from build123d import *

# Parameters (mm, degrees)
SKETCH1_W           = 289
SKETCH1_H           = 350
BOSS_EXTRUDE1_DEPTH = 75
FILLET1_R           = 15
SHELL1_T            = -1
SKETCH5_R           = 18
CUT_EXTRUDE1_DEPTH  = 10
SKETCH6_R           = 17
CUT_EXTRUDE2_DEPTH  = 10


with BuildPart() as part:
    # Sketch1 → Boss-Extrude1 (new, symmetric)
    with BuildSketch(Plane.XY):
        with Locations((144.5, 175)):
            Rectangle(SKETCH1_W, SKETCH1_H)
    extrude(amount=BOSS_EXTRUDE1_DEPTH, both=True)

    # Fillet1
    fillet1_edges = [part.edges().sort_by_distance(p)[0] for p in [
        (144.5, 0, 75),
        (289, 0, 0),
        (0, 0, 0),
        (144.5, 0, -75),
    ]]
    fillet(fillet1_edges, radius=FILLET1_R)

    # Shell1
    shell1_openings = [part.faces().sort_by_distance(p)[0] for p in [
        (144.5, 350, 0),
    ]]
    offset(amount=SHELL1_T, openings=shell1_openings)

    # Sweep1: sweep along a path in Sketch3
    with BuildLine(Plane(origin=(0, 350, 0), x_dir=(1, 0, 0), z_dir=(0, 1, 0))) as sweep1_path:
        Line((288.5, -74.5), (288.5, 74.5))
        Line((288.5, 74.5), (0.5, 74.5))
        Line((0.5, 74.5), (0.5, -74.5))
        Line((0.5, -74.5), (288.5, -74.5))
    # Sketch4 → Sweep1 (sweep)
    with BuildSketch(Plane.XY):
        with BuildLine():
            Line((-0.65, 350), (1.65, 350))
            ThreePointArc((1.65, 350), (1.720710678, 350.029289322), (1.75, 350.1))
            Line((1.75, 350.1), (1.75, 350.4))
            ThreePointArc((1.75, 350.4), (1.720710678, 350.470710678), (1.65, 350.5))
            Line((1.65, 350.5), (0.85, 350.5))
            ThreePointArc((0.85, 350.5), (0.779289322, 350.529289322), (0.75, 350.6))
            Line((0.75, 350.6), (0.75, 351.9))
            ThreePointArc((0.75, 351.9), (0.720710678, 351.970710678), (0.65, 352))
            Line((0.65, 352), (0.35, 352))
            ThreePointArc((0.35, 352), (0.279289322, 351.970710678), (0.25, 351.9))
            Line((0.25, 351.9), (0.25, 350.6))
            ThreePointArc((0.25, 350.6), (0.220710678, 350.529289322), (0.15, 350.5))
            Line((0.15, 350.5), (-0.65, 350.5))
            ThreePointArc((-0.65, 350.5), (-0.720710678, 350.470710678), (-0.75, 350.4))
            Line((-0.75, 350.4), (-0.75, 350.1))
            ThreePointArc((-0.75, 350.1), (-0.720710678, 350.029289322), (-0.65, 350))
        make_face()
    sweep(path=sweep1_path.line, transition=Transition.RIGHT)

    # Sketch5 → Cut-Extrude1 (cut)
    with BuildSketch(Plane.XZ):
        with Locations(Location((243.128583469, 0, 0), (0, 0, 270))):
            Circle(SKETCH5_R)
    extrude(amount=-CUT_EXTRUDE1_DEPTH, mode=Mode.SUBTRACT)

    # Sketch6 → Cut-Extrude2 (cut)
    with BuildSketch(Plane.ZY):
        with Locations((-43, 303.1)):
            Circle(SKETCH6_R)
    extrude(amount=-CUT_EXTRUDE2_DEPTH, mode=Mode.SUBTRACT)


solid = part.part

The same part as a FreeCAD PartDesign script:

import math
import FreeCAD as App
import Part
import Sketcher

V = App.Vector


def edges_at(feature, points):
    """Names of the edges that pass closest to the given points."""
    edges = feature.Shape.Edges
    near = lambda p: min(range(len(edges)), key=lambda i: edges[i].distToShape(Part.Vertex(*p))[0])
    return sorted({f"Edge{near(p) + 1}" for p in points})


def faces_at(feature, points):
    """Names of the faces that lie closest to the given points."""
    faces = feature.Shape.Faces
    near = lambda p: min(range(len(faces)), key=lambda i: faces[i].distToShape(Part.Vertex(*p))[0])
    return sorted({f"Face{near(p) + 1}" for p in points})


def add_polygon(sketch, points):
    """Adds a closed chain of lines whose ends are joined by coincident constraints."""
    first, n = sketch.GeometryCount, len(points)
    for a, b in zip(points, points[1:] + points[:1]):
        sketch.addGeometry(Part.LineSegment(App.Vector(*a, 0), App.Vector(*b, 0)), False)
    for i in range(n):
        sketch.addConstraint(Sketcher.Constraint("Coincident", first + i, 2, first + (i + 1) % n, 1))

doc = App.newDocument("Part")
body = doc.addObject("PartDesign::Body", "Body")

sketch1 = body.newObject("Sketcher::SketchObject", "Sketch")
sketch1.AttachmentSupport = (doc.getObject("XY_Plane"), [""])
sketch1.MapMode = "FlatFace"
add_polygon(sketch1, [(0, 350), (0, 0), (289, 0), (289, 350)])
sketch1.addConstraint([
    Sketcher.Constraint("Vertical", 0),
    Sketcher.Constraint("Horizontal", 1),
    Sketcher.Constraint("Vertical", 2),
    Sketcher.Constraint("Horizontal", 3),
    Sketcher.Constraint("Coincident", 0, 2, -1, 1),
    Sketcher.Constraint("DistanceX", 1, 1, 1, 2, 289.0),
    Sketcher.Constraint("DistanceY", 0, 2, 0, 1, 350.0),
])
pad1 = body.newObject("PartDesign::Pad", "Pad")
pad1.Profile = sketch1
pad1.Length = 150
pad1.Midplane = True
doc.recompute()

fillet = body.newObject("PartDesign::Fillet", "Fillet")
fillet.Base = (pad1, edges_at(pad1, [
    (144.5, 0, 75),
    (289, 0, 0),
    (0, 0, 0),
    (144.5, 0, -75),
]))
fillet.Radius = 15
doc.recompute()

thickness = body.newObject("PartDesign::Thickness", "Thickness")
thickness.Base = (fillet, faces_at(fillet, [(144.5, 350, 0)]))
thickness.Value = 1
thickness.Reversed = True
thickness.Join = "Arc"

sketch2 = body.newObject("Sketcher::SketchObject", "Sketch001")
sketch2.AttachmentSupport = (doc.getObject("XY_Plane"), [""])
sketch2.MapMode = "FlatFace"
sketch2.addGeometry([
    Part.LineSegment(V(-0.65, 350, 0), V(1.65, 350, 0)),
    Part.ArcOfCircle(Part.Circle(V(1.65, 350.1, 0), V(0, 0, 1), 0.1), math.radians(-90), math.radians(0)),
    Part.LineSegment(V(1.75, 350.1, 0), V(1.75, 350.4, 0)),
    Part.ArcOfCircle(Part.Circle(V(1.65, 350.4, 0), V(0, 0, 1), 0.1), math.radians(0), math.radians(90)),
    Part.LineSegment(V(1.65, 350.5, 0), V(0.85, 350.5, 0)),
    Part.ArcOfCircle(Part.Circle(V(0.85, 350.6, 0), V(0, 0, 1), 0.1), math.radians(180), math.radians(270)),
    Part.LineSegment(V(0.75, 350.6, 0), V(0.75, 351.9, 0)),
    Part.ArcOfCircle(Part.Circle(V(0.65, 351.9, 0), V(0, 0, 1), 0.1), math.radians(0), math.radians(90)),
    Part.LineSegment(V(0.65, 352, 0), V(0.35, 352, 0)),
    Part.ArcOfCircle(Part.Circle(V(0.35, 351.9, 0), V(0, 0, 1), 0.1), math.radians(90), math.radians(180)),
    Part.LineSegment(V(0.25, 351.9, 0), V(0.25, 350.6, 0)),
    Part.ArcOfCircle(Part.Circle(V(0.15, 350.6, 0), V(0, 0, 1), 0.1), math.radians(-90), math.radians(0)),
    Part.LineSegment(V(0.15, 350.5, 0), V(-0.65, 350.5, 0)),
    Part.ArcOfCircle(Part.Circle(V(-0.65, 350.4, 0), V(0, 0, 1), 0.1), math.radians(90), math.radians(180)),
    Part.LineSegment(V(-0.75, 350.4, 0), V(-0.75, 350.1, 0)),
    Part.ArcOfCircle(Part.Circle(V(-0.65, 350.1, 0), V(0, 0, 1), 0.1), math.radians(180), math.radians(270)),
], False)
sketch2.addConstraint([
    Sketcher.Constraint("Tangent", 0, 2, 1, 1),
    Sketcher.Constraint("Tangent", 1, 2, 2, 1),
    Sketcher.Constraint("Tangent", 2, 2, 3, 1),
    Sketcher.Constraint("Tangent", 3, 2, 4, 1),
    Sketcher.Constraint("Tangent", 4, 2, 5, 2),
    Sketcher.Constraint("Tangent", 5, 1, 6, 1),
    Sketcher.Constraint("Tangent", 6, 2, 7, 1),
    Sketcher.Constraint("Tangent", 7, 2, 8, 1),
    Sketcher.Constraint("Tangent", 8, 2, 9, 1),
    Sketcher.Constraint("Tangent", 9, 2, 10, 1),
    Sketcher.Constraint("Tangent", 10, 2, 11, 2),
    Sketcher.Constraint("Tangent", 11, 1, 12, 1),
    Sketcher.Constraint("Tangent", 12, 2, 13, 1),
    Sketcher.Constraint("Tangent", 13, 2, 14, 1),
    Sketcher.Constraint("Tangent", 14, 2, 15, 1),
    Sketcher.Constraint("Tangent", 15, 2, 0, 1),
    Sketcher.Constraint("Horizontal", 0),
    Sketcher.Constraint("Vertical", 2),
    Sketcher.Constraint("Horizontal", 4),
    Sketcher.Constraint("Vertical", 6),
    Sketcher.Constraint("Horizontal", 8),
    Sketcher.Constraint("Vertical", 10),
    Sketcher.Constraint("Horizontal", 12),
    Sketcher.Constraint("Vertical", 14),
    Sketcher.Constraint("Equal", 1, 3),
    Sketcher.Constraint("Equal", 3, 5),
    Sketcher.Constraint("Equal", 5, 7),
    Sketcher.Constraint("Equal", 7, 9),
    Sketcher.Constraint("Equal", 9, 11),
    Sketcher.Constraint("Equal", 11, 13),
    Sketcher.Constraint("Equal", 13, 15),
    Sketcher.Constraint("Horizontal", 5, 3, 11, 3),
    Sketcher.Constraint("Equal", 4, 12),
    Sketcher.Constraint("Equal", 8, 2),
    Sketcher.Constraint("Radius", 1, 0.1),
    Sketcher.Constraint("DistanceX", 0, 1, 0, 2, 2.3),
    Sketcher.Constraint("DistanceX", 4, 2, 4, 1, 0.8),
    Sketcher.Constraint("DistanceY", 6, 1, 6, 2, 1.3),
    Sketcher.Constraint("DistanceY", -1, 1, 0, 2, 350.0),
    Sketcher.Constraint("DistanceX", -1, 1, 1, 3, 1.65),
])

sketch3 = body.newObject("Sketcher::SketchObject", "Sketch002")
sketch3.AttachmentSupport = (doc.getObject("XZ_Plane"), [""])
sketch3.MapMode = "FlatFace"
sketch3.AttachmentOffset = App.Placement(V(0, 0, -350), App.Rotation())
add_polygon(sketch3, [(288, 74), (288, -74), (0, -74), (0, 74)])
sketch3.addConstraint([
    Sketcher.Constraint("Vertical", 0),
    Sketcher.Constraint("Horizontal", 1),
    Sketcher.Constraint("Vertical", 2),
    Sketcher.Constraint("Horizontal", 3),
    Sketcher.Constraint("DistanceX", 1, 2, 1, 1, 288.0),
    Sketcher.Constraint("DistanceY", 0, 2, 0, 1, 149.0),
    Sketcher.Constraint("DistanceX", -1, 1, 0, 2, 288.5),
    Sketcher.Constraint("DistanceY", 0, 2, -1, 1, 74.5),
])
doc.recompute()

additivepipe = body.newObject("PartDesign::AdditivePipe", "AdditivePipe")
additivepipe.Profile = sketch2
additivepipe.Spine = (sketch3, ["Edge1", "Edge2", "Edge3", "Edge4"])
additivepipe.Transition = "Right corner"

sketch4 = body.newObject("Sketcher::SketchObject", "Sketch003")
sketch4.AttachmentSupport = (doc.getObject("XZ_Plane"), [""])
sketch4.MapMode = "FlatFace"
sketch4.addGeometry(Part.Circle(V(243, 0, 0), V(0, 0, 1), 18), False)
sketch4.addConstraint([
    Sketcher.Constraint("PointOnObject", 0, 3, -1),
    Sketcher.Constraint("Diameter", 0, 36.0),
    Sketcher.Constraint("DistanceX", -1, 1, 0, 3, 243.128583),
])
pocket1 = body.newObject("PartDesign::Pocket", "Pocket")
pocket1.Profile = sketch4
pocket1.Length = 10

sketch5 = body.newObject("Sketcher::SketchObject", "Sketch004")
sketch5.AttachmentSupport = (doc.getObject("YZ_Plane"), [""])
sketch5.MapMode = "FlatFace"
sketch5.addGeometry(Part.Circle(V(303, -43, 0), V(0, 0, 1), 17), False)
sketch5.addConstraint([
    Sketcher.Constraint("Diameter", 0, 34.0),
    Sketcher.Constraint("DistanceY", 0, 3, -1, 1, 43.0),
    Sketcher.Constraint("DistanceX", -1, 1, 0, 3, 303.1),
])
pocket2 = body.newObject("PartDesign::Pocket", "Pocket001")
pocket2.Profile = sketch5
pocket2.Length = 10
pocket2.Reversed = True

doc.recompute()
